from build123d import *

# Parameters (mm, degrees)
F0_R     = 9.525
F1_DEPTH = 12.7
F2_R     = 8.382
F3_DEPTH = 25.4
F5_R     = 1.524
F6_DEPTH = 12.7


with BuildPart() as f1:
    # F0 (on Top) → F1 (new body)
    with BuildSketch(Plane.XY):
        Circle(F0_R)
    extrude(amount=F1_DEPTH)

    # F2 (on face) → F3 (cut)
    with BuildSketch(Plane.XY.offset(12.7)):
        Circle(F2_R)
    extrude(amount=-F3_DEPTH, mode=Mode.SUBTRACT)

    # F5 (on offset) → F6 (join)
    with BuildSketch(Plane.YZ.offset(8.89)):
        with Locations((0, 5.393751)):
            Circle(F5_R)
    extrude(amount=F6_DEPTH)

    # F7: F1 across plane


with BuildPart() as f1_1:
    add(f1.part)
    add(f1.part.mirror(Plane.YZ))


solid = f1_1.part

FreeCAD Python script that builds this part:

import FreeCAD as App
import Part
import Sketcher
from FreeCAD import Vector
Q = App.Units.Quantity

doc = App.newDocument("Part")
params = doc.addObject("Spreadsheet::Sheet", "Params")
for row, (alias, value) in enumerate([
    ("sketch1_diameter", "0.75 in"),
    ("pad1_length", "0.5 in"),
    ("sketch2_diameter", "0.66 in"),
    ("pocket1_length", "1 in"),
    ("sketch3_diameter", "0.12 in"),
    ("pad2_length", "0.5 in"),
], start=1):
    params.set(f"A{row}", alias)
    params.set(f"B{row}", "=" + value)
    params.setAlias(f"B{row}", alias)

body = doc.addObject("PartDesign::Body", "Body")

sketch1 = body.newObject("Sketcher::SketchObject", "Sketch")
sketch1.AttachmentSupport = (doc.getObject("XY_Plane"), [""])
sketch1.MapMode = "FlatFace"
sketch1.addGeometry(Part.Circle(Vector(0, 0, 0), Vector(0, 0, 1), 9.525), False)
sketch1.addConstraint([
    Sketcher.Constraint("Coincident", 0, 3, -1, 1),
    Sketcher.Constraint("Diameter", 0, Q("0.75 in")),
])
sketch1.setExpression("Constraints[1]", "Params.sketch1_diameter")
pad1 = body.newObject("PartDesign::Pad", "Pad")
pad1.Profile = sketch1
pad1.setExpression("Length", "Params.pad1_length")

sketch2 = body.newObject("Sketcher::SketchObject", "Sketch001")
sketch2.AttachmentSupport = (doc.getObject("XY_Plane"), [""])
sketch2.MapMode = "FlatFace"
sketch2.AttachmentOffset = App.Placement(Vector(0, 0, 0.5 * 25.4), App.Rotation())
sketch2.addGeometry(Part.Circle(Vector(0, 0, 0), Vector(0, 0, 1), 8.382), False)
sketch2.addConstraint([
    Sketcher.Constraint("Coincident", 0, 3, -1, 1),
    Sketcher.Constraint("Diameter", 0, Q("0.66 in")),
])
sketch2.setExpression("Constraints[1]", "Params.sketch2_diameter")
pocket1 = body.newObject("PartDesign::Pocket", "Pocket")
pocket1.Profile = sketch2
pocket1.setExpression("Length", "Params.pocket1_length")

sketch3 = body.newObject("Sketcher::SketchObject", "Sketch002")
sketch3.AttachmentSupport = (doc.getObject("YZ_Plane"), [""])
sketch3.MapMode = "FlatFace"
sketch3.AttachmentOffset = App.Placement(Vector(0, 0, 0.35 * 25.4), App.Rotation())
sketch3.addGeometry(Part.Circle(Vector(0, 5.393751, 0), Vector(0, 0, 1), 1.524), False)
sketch3.addConstraint([
    Sketcher.Constraint("PointOnObject", 0, 3, -2),
    Sketcher.Constraint("Diameter", 0, Q("0.12 in")),
    Sketcher.Constraint("DistanceY", -1, 1, 0, 3, Q("5.393751 mm")),
])
sketch3.setExpression("Constraints[1]", "Params.sketch3_diameter")
pad2 = body.newObject("PartDesign::Pad", "Pad001")
pad2.Profile = sketch3
pad2.setExpression("Length", "Params.pad2_length")
body2 = doc.addObject("PartDesign::Body", "Body001")
doc.recompute()

body2.BaseFeature = body
doc.recompute()

mirroring = doc.addObject("Part::Mirroring", "Mirroring")
mirroring.Source = body
mirroring.Base = Vector(0, 0, 0)
mirroring.Normal = Vector(1, 0, 0)
body3 = doc.addObject("PartDesign::Body", "Body002")
body3.BaseFeature = mirroring
boolean = body2.newObject("PartDesign::Boolean", "Boolean")
boolean.Type = "Fuse"
boolean.addObjects([body3])
doc.recompute()
mirroring.Visibility = False

doc.recompute()
